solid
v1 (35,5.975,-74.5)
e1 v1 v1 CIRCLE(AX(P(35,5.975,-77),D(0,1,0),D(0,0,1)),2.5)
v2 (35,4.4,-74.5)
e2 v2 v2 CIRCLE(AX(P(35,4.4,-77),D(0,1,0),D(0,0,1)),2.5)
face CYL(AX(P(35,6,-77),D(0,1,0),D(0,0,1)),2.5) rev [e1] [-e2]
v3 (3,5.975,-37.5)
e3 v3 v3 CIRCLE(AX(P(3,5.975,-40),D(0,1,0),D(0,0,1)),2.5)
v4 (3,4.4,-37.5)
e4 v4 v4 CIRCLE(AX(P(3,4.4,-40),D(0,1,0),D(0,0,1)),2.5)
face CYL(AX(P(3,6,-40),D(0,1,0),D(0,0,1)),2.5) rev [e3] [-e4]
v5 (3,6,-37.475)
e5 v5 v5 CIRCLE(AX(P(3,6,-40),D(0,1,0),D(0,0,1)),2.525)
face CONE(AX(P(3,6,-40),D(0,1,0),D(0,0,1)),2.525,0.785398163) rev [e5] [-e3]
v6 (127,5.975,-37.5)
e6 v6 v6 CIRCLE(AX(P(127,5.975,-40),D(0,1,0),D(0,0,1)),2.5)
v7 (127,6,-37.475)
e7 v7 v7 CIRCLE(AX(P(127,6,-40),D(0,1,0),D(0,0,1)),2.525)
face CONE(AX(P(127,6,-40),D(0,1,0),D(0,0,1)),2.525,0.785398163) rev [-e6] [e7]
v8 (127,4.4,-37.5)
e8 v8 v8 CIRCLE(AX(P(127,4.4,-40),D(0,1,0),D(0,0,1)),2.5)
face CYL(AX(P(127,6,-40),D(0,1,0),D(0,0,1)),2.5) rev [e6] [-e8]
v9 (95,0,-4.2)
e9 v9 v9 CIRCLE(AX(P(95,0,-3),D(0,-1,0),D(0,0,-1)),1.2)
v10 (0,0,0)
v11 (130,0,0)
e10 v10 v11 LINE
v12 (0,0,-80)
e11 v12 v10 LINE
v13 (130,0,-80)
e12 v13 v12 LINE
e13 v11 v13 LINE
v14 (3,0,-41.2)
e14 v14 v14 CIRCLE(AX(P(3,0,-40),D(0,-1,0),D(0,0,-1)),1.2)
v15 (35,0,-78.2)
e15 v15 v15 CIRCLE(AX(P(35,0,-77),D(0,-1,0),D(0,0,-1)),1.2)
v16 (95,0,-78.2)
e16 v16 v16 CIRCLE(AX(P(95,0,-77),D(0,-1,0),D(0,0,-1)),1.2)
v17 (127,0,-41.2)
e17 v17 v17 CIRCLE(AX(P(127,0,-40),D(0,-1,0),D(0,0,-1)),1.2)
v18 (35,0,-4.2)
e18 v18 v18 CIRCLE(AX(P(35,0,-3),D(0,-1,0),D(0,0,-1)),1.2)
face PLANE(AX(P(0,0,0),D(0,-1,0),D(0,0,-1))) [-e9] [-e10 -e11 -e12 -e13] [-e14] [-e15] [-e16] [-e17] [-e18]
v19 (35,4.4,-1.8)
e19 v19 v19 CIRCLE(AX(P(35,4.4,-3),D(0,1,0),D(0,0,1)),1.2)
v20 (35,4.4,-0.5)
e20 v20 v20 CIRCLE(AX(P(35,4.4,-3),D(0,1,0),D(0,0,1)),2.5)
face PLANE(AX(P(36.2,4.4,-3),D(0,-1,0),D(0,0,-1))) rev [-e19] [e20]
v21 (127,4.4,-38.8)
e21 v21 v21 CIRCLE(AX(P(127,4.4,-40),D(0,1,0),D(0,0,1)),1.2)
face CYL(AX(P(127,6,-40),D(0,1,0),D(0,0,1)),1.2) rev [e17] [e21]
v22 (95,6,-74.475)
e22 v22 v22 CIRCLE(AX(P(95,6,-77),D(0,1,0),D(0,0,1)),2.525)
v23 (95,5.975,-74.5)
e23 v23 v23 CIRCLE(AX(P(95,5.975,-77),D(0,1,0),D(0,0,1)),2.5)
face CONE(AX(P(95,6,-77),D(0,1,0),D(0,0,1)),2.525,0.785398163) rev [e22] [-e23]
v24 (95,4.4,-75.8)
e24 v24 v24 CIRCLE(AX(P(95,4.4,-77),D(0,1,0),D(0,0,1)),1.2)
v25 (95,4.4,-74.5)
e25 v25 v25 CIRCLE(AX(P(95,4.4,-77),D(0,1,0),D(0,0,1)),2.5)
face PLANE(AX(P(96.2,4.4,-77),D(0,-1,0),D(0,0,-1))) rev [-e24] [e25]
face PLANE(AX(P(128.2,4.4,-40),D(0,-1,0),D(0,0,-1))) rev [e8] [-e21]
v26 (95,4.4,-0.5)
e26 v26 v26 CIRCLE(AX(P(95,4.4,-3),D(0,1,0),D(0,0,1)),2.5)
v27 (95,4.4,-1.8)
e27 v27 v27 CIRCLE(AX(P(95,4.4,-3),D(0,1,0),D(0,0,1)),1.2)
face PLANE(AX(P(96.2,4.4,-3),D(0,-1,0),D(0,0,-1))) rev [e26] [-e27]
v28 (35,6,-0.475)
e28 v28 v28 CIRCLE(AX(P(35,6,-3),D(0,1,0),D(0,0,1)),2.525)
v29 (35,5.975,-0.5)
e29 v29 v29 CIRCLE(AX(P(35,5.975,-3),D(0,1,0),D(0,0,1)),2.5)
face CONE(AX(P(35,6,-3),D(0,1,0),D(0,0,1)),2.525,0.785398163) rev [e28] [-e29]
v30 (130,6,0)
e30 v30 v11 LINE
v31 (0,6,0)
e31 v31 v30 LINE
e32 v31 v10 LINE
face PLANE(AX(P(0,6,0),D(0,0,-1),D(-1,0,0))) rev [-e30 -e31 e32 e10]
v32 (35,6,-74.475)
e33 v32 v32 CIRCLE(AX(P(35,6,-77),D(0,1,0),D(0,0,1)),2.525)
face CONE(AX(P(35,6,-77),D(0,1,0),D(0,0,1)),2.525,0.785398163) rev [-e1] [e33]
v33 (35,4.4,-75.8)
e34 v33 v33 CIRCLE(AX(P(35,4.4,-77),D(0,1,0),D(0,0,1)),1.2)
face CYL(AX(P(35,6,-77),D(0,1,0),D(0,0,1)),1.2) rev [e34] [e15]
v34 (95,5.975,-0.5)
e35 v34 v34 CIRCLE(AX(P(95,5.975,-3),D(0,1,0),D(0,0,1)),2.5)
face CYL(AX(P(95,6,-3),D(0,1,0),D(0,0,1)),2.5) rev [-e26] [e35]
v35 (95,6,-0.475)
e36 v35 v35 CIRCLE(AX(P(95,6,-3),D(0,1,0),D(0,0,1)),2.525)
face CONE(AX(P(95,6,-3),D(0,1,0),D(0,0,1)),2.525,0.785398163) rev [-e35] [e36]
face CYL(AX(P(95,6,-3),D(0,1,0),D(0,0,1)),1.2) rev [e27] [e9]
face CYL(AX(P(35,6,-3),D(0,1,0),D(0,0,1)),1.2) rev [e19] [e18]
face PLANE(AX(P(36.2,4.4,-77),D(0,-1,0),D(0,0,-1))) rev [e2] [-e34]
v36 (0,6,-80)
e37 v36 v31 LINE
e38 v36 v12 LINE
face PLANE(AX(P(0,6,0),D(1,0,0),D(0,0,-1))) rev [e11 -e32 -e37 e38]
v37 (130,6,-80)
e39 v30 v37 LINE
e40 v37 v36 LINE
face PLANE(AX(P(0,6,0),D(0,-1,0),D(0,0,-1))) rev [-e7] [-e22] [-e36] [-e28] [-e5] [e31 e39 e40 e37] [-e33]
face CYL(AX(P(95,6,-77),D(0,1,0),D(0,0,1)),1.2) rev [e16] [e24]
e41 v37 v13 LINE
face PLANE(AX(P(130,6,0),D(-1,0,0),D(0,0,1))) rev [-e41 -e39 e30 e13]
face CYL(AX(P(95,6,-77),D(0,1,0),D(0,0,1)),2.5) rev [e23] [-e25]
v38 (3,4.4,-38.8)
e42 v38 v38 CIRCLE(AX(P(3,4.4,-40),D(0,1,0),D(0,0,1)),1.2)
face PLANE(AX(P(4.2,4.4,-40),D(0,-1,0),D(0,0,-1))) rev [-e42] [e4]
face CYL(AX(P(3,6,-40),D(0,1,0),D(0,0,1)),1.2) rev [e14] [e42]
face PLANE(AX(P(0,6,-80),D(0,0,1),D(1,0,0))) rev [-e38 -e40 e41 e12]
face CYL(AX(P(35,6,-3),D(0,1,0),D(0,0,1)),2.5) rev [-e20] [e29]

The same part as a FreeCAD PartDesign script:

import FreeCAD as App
import Part
import Sketcher
Q = App.Units.Quantity


def add_polygon(sketch, points):
    """Adds a closed chain of lines whose ends are joined by coincident constraints."""
    first, n = sketch.GeometryCount, len(points)
    for a, b in zip(points, points[1:] + points[:1]):
        sketch.addGeometry(Part.LineSegment(App.Vector(*a, 0), App.Vector(*b, 0)), False)
    for i in range(n):
        sketch.addConstraint(Sketcher.Constraint("Coincident", first + i, 2, first + (i + 1) % n, 1))

doc = App.newDocument("Part")
params = doc.addObject("Spreadsheet::Sheet", "Params")
for row, (alias, value) in enumerate([
    ("sketch1_width", "130 mm"),
    ("sketch1_height", "80 mm"),
    ("pad1_length", "6 mm"),
    ("sketch2_diameter", "2.4 mm"),
    ("hole_diameter", "2.4 mm"),
    ("hole_depth", "10 mm"),
    ("hole_csink_diameter", "2.45 mm"),
    ("sketch3_width", "0.4 mm"),
    ("sketch3_height", "1.3 mm"),
    ("groove_angle", "360 deg"),
    ("linearpattern_pitch", "48.918299 mm"),
    ("linearpattern2_pitch", "74 mm"),
    ("linearpattern3_pitch", "95.268043 mm"),
    ("linearpattern4_pitch", "99.161484 mm"),
    ("linearpattern5_pitch", "60 mm"),
], start=1):
    params.set(f"A{row}", alias)
    params.set(f"B{row}", "=" + value)
    params.setAlias(f"B{row}", alias)

body = doc.addObject("PartDesign::Body", "Body")

# Sketch on XZ plane
sketch1 = body.newObject("Sketcher::SketchObject", "Sketch")
sketch1.AttachmentSupport = (doc.getObject("XZ_Plane"), [""])
sketch1.MapMode = "FlatFace"
add_polygon(sketch1, [(0, -80), (0, 0), (130, 0), (130, -80)])  # lines 0-3
sketch1.addConstraint([
    Sketcher.Constraint("Vertical", 0),
    Sketcher.Constraint("Horizontal", 1),
    Sketcher.Constraint("Vertical", 2),
    Sketcher.Constraint("Horizontal", 3),
    Sketcher.Constraint("Coincident", 0, 2, -1, 1),
    Sketcher.Constraint("DistanceX", 1, 1, 1, 2, Q("130 mm")),
    Sketcher.Constraint("DistanceY", 0, 1, 0, 2, Q("80 mm")),
])
sketch1.setExpression("Constraints[9]", "Params.sketch1_width")
sketch1.setExpression("Constraints[10]", "Params.sketch1_height")
pad1 = body.newObject("PartDesign::Pad", "Pad")
pad1.Profile = sketch1
pad1.setExpression("Length", "Params.pad1_length")
pad1.Reversed = True

# Sketch on XZ plane
sketch2 = body.newObject("Sketcher::SketchObject", "Sketch001")
sketch2.AttachmentSupport = (doc.getObject("XZ_Plane"), [""])
sketch2.MapMode = "FlatFace"
sketch2.AttachmentOffset = App.Placement(App.Vector(0, 0, -6), App.Rotation())
sketch2.addGeometry([
    Part.Circle(App.Vector(35, -77, 0), App.Vector(0, 0, 1), 1.2),  # 0
    Part.Circle(App.Vector(95, -77, 0), App.Vector(0, 0, 1), 1.2),  # 1
    Part.Circle(App.Vector(127, -40, 0), App.Vector(0, 0, 1), 1.2),  # 2
    Part.Circle(App.Vector(95, -3, 0), App.Vector(0, 0, 1), 1.2),  # 3
    Part.Circle(App.Vector(35, -3, 0), App.Vector(0, 0, 1), 1.2),  # 4
    Part.Circle(App.Vector(3, -40, 0), App.Vector(0, 0, 1), 1.2),  # 5
    Part.Circle(App.Vector(133.1, -32.8, 0), App.Vector(0, 0, 1), 1.2),  # 6
], False)
sketch2.addConstraint([
    Sketcher.Constraint("Equal", 0, 1),
    Sketcher.Constraint("Equal", 1, 2),
    Sketcher.Constraint("Equal", 2, 3),
    Sketcher.Constraint("Equal", 3, 4),
    Sketcher.Constraint("Equal", 4, 5),
    Sketcher.Constraint("Equal", 5, 6),
    Sketcher.Constraint("Horizontal", 0, 3, 1, 3),
    Sketcher.Constraint("Horizontal", 3, 3, 4, 3),
    Sketcher.Constraint("Horizontal", 2, 3, 5, 3),
    Sketcher.Constraint("Vertical", 1, 3, 3, 3),
    Sketcher.Constraint("Vertical", 0, 3, 4, 3),
    Sketcher.Constraint("Diameter", 0, Q("2.4 mm")),
    Sketcher.Constraint("DistanceX", -1, 1, 0, 3, Q("35 mm")),
    Sketcher.Constraint("DistanceY", 0, 3, -1, 1, Q("77 mm")),
    Sketcher.Constraint("DistanceX", -1, 1, 1, 3, Q("95 mm")),
    Sketcher.Constraint("DistanceX", -1, 1, 2, 3, Q("127 mm")),
    Sketcher.Constraint("DistanceY", 2, 3, -1, 1, Q("40 mm")),
    Sketcher.Constraint("DistanceY", 3, 3, -1, 1, Q("3 mm")),
    Sketcher.Constraint("DistanceX", -1, 1, 5, 3, Q("3 mm")),
    Sketcher.Constraint("DistanceX", -1, 1, 6, 3, Q("133.088689 mm")),
    Sketcher.Constraint("DistanceY", 6, 3, -1, 1, Q("32.80342 mm")),
])
sketch2.setExpression("Constraints[11]", "Params.sketch2_diameter")
doc.recompute()
hole = body.newObject("PartDesign::Hole", "Hole")
hole.Profile = sketch2
hole.ThreadType = "None"
hole.setExpression("Diameter", "Params.hole_diameter")
hole.DepthType = "Dimension"
hole.setExpression("Depth", "Params.hole_depth")
hole.DrillPoint = "Angled"
hole.DrillPointAngle = 118
hole.HoleCutType = "Countersink"
hole.setExpression("HoleCutDiameter", "Params.hole_csink_diameter")
hole.HoleCutCountersinkAngle = 90
hole.Reversed = True

# Sketch on YZ plane
sketch3 = body.newObject("Sketcher::SketchObject", "Sketch002")
sketch3.AttachmentSupport = (doc.getObject("YZ_Plane"), [""])
sketch3.MapMode = "FlatFace"
sketch3.AttachmentOffset = App.Placement(App.Vector(0, 0, 95), App.Rotation())
add_polygon(sketch3, [(3.279, -3), (6, -3), (6, -0.475), (5.975, -0.5), (4.4, -0.5), (4.4, -1.8), (4, -1.8)])  # lines 0-6
sketch3.addGeometry(Part.LineSegment(App.Vector(6, -3, 0), App.Vector(3.279, -3, 0)), True)  # axis
sketch3.addConstraint([
    Sketcher.Constraint("Horizontal", 0),
    Sketcher.Constraint("Vertical", 1),
    Sketcher.Constraint("Horizontal", 3),
    Sketcher.Constraint("Vertical", 4),
    Sketcher.Constraint("Horizontal", 5),
    Sketcher.Constraint("Horizontal", 7),
    Sketcher.Constraint("Coincident", 7, 1, 0, 2),
    Sketcher.Constraint("Equal", 0, 7),
    Sketcher.Constraint("Angle", 2, Q("-135 deg")),
    Sketcher.Constraint("Angle", 6, Q("-121 deg")),
    Sketcher.Constraint("DistanceX", 5, 2, 5, 1, Q("0.4 mm")),
    Sketcher.Constraint("DistanceY", 4, 2, 4, 1, Q("1.3 mm")),
    Sketcher.Constraint("DistanceX", -1, 1, 0, 2, Q("6 mm")),
    Sketcher.Constraint("DistanceY", 0, 2, -1, 1, Q("3 mm")),
    Sketcher.Constraint("DistanceX", -1, 1, 5, 2, Q("4 mm")),
    Sketcher.Constraint("DistanceY", 2, 2, -1, 1, Q("0.5 mm")),
    Sketcher.Constraint("DistanceX", 3, 2, 3, 1, Q("1.575 mm")),
])
sketch3.setExpression("Constraints[17]", "Params.sketch3_width")
sketch3.setExpression("Constraints[18]", "Params.sketch3_height")
groove = body.newObject("PartDesign::Groove", "Groove")
groove.Profile = sketch3
groove.ReferenceAxis = (sketch3, ["Axis0"])
groove.setExpression("Angle", "Params.groove_angle")
doc.recompute()

datumline = body.newObject("PartDesign::Line", "DatumLine")
datumline.Placement = App.Placement(App.Vector(0, 0, 0), App.Rotation(App.Vector(0, 0, 1), App.Vector(0.654151933, 0, -0.756363172)))
linearpattern = body.newObject("PartDesign::LinearPattern", "LinearPattern")
linearpattern.Originals = [groove]
linearpattern.Direction = (datumline, [""])
linearpattern.Mode = "offset"
linearpattern.setExpression("Offset", "Params.linearpattern_pitch")
linearpattern.Occurrences = 2
body.Tip = linearpattern
doc.recompute()

linearpattern2 = body.newObject("PartDesign::LinearPattern", "LinearPattern001")
linearpattern2.Originals = [groove]
linearpattern2.Direction = (doc.getObject("Z_Axis"), [""])
linearpattern2.Mode = "offset"
linearpattern2.setExpression("Offset", "Params.linearpattern2_pitch")
linearpattern2.Occurrences = 2
linearpattern2.Reversed = True
body.Tip = linearpattern2
doc.recompute()

datumline2 = body.newObject("PartDesign::Line", "DatumLine001")
datumline2.Placement = App.Placement(App.Vector(0, 0, 0), App.Rotation(App.Vector(0, 0, 1), App.Vector(-0.629801958, 0, -0.776755749)))
linearpattern3 = body.newObject("PartDesign::LinearPattern", "LinearPattern002")
linearpattern3.Originals = [groove]
linearpattern3.Direction = (datumline2, [""])
linearpattern3.Mode = "offset"
linearpattern3.setExpression("Offset", "Params.linearpattern3_pitch")
linearpattern3.Occurrences = 2
body.Tip = linearpattern3
doc.recompute()

datumline3 = body.newObject("PartDesign::Line", "DatumLine002")
datumline3.Placement = App.Placement(App.Vector(0, 0, 0), App.Rotation(App.Vector(0, 0, 1), App.Vector(-0.927779576, 0, -0.373128742)))
linearpattern4 = body.newObject("PartDesign::LinearPattern", "LinearPattern003")
linearpattern4.Originals = [groove]
linearpattern4.Direction = (datumline3, [""])
linearpattern4.Mode = "offset"
linearpattern4.setExpression("Offset", "Params.linearpattern4_pitch")
linearpattern4.Occurrences = 2
body.Tip = linearpattern4
doc.recompute()

linearpattern5 = body.newObject("PartDesign::LinearPattern", "LinearPattern004")
linearpattern5.Originals = [groove]
linearpattern5.Direction = (doc.getObject("X_Axis"), [""])
linearpattern5.Mode = "offset"
linearpattern5.setExpression("Offset", "Params.linearpattern5_pitch")
linearpattern5.Occurrences = 2
linearpattern5.Reversed = True
body.Tip = linearpattern5

doc.recompute()
